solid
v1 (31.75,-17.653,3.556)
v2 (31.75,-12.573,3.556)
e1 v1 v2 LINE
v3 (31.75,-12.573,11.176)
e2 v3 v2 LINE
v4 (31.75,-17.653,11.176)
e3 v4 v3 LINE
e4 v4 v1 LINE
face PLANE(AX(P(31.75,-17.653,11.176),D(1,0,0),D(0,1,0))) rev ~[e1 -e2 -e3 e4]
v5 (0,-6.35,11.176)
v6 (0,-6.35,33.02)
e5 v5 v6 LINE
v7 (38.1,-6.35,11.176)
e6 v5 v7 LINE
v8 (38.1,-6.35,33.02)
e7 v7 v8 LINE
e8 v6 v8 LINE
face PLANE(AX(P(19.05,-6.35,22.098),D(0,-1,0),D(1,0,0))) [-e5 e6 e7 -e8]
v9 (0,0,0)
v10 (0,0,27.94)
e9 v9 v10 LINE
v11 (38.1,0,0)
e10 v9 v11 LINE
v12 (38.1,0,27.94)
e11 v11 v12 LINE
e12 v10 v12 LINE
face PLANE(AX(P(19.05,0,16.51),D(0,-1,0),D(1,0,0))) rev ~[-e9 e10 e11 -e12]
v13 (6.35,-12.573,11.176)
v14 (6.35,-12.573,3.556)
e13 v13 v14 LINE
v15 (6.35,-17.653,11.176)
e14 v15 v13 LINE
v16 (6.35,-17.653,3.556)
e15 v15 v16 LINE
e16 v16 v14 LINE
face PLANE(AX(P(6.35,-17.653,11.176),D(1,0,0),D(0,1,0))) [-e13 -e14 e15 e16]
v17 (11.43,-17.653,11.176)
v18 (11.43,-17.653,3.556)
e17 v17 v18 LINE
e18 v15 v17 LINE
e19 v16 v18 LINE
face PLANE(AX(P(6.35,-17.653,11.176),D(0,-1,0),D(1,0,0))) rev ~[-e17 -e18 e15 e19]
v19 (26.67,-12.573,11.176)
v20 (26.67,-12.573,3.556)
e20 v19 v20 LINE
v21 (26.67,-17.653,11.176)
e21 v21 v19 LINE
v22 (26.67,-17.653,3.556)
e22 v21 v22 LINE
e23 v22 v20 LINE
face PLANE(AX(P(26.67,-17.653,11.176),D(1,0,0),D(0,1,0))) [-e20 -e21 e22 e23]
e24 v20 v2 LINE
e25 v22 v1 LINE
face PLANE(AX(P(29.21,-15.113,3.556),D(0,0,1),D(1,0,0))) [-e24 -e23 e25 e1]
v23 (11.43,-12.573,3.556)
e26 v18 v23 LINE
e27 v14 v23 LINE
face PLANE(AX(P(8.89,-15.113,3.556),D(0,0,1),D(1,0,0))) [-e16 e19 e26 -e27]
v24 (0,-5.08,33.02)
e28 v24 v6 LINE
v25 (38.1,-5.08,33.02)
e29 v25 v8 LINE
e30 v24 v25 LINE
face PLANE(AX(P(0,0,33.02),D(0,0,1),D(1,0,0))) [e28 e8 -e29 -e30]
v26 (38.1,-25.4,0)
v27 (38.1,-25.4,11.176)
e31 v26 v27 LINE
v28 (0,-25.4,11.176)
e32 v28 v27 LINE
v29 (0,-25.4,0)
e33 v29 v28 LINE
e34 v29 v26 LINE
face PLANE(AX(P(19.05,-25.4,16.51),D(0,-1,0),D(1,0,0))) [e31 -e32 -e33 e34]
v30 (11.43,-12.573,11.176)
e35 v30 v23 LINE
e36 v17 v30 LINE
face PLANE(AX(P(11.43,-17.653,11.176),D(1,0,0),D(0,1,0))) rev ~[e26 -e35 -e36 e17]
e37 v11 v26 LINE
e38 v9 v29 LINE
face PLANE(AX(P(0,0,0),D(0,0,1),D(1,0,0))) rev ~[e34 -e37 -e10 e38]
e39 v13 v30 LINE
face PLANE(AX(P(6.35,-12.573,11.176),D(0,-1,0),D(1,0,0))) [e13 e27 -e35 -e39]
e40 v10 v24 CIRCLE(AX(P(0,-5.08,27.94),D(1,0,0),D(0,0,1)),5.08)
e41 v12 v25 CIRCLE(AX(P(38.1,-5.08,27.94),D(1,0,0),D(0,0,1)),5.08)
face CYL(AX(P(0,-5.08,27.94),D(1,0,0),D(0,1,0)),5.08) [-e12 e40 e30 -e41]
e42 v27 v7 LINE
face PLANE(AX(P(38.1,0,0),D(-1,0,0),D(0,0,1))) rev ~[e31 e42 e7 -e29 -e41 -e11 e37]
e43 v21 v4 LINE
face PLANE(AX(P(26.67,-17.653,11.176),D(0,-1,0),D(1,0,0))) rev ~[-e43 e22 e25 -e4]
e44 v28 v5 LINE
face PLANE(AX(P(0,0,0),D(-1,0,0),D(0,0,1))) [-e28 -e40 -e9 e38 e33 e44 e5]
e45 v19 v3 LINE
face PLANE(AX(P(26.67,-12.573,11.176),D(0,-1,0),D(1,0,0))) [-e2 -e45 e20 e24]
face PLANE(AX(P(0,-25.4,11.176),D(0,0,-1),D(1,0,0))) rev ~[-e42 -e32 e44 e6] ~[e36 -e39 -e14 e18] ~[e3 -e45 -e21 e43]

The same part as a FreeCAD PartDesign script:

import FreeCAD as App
import Part
import Sketcher

V = App.Vector
Q = App.Units.Quantity


def edges_at(feature, points):
    """Names of the edges that pass closest to the given points."""
    edges = feature.Shape.Edges
    near = lambda p: min(range(len(edges)), key=lambda i: edges[i].distToShape(Part.Vertex(*p))[0])
    return sorted({f"Edge{near(p) + 1}" for p in points})

doc = App.newDocument("Part")
params = doc.addObject("Spreadsheet::Sheet", "Params")
for row, (alias, value) in enumerate([
    ("sketch1_width", "1.5 in"),
    ("sketch1_height", "1.3 in"),
    ("pad1_length", "1 in"),
    ("sketch2_width", "1.5 in"),
    ("sketch2_height", "0.86 in"),
    ("pocket1_length", "0.75 in"),
    ("sketch3_width", "0.2 in"),
    ("pocket2_length", "0.3 in"),
    ("fillet_radius", "0.2 in"),
], start=1):
    params.set(f"A{row}", alias)
    params.set(f"B{row}", "=" + value)
    params.setAlias(f"B{row}", alias)

body = doc.addObject("PartDesign::Body", "Body")

sketch1 = body.newObject("Sketcher::SketchObject", "Sketch")
sketch1.AttachmentSupport = (doc.getObject("XZ_Plane"), [""])
sketch1.MapMode = "FlatFace"
sketch1.addGeometry(Part.LineSegment(V(0, 33, 0), V(0, 0, 0)), False)
sketch1.addGeometry(Part.LineSegment(V(0, 0, 0), V(38, 0, 0)), False)
sketch1.addGeometry(Part.LineSegment(V(38, 0, 0), V(38, 33, 0)), False)
sketch1.addGeometry(Part.LineSegment(V(38, 33, 0), V(0, 33, 0)), False)
sketch1.addConstraint(Sketcher.Constraint("Coincident", 0, 2, 1, 1))
sketch1.addConstraint(Sketcher.Constraint("Coincident", 1, 2, 2, 1))
sketch1.addConstraint(Sketcher.Constraint("Coincident", 2, 2, 3, 1))
sketch1.addConstraint(Sketcher.Constraint("Coincident", 3, 2, 0, 1))
sketch1.addConstraint(Sketcher.Constraint("Vertical", 0))
sketch1.addConstraint(Sketcher.Constraint("Horizontal", 1))
sketch1.addConstraint(Sketcher.Constraint("Vertical", 2))
sketch1.addConstraint(Sketcher.Constraint("Horizontal", 3))
sketch1.addConstraint(Sketcher.Constraint("Coincident", 0, 2, -1, 1))
sketch1.addConstraint(Sketcher.Constraint("DistanceX", 1, 1, 1, 2, Q("1.5 in")))
sketch1.addConstraint(Sketcher.Constraint("DistanceY", 0, 2, 0, 1, Q("1.3 in")))
sketch1.setExpression("Constraints[9]", "Params.sketch1_width")
sketch1.setExpression("Constraints[10]", "Params.sketch1_height")
pad1 = body.newObject("PartDesign::Pad", "Pad")
pad1.Profile = sketch1
pad1.setExpression("Length", "Params.pad1_length")

sketch2 = body.newObject("Sketcher::SketchObject", "Sketch001")
sketch2.AttachmentSupport = (doc.getObject("XZ_Plane"), [""])
sketch2.MapMode = "FlatFace"
sketch2.AttachmentOffset = App.Placement(V(0, 0, 1 * 25.4), App.Rotation())
sketch2.addGeometry(Part.LineSegment(V(0, 33, 0), V(0, 11, 0)), False)
sketch2.addGeometry(Part.LineSegment(V(0, 11, 0), V(38, 11, 0)), False)
sketch2.addGeometry(Part.LineSegment(V(38, 11, 0), V(38, 33, 0)), False)
sketch2.addGeometry(Part.LineSegment(V(38, 33, 0), V(0, 33, 0)), False)
sketch2.addConstraint(Sketcher.Constraint("Coincident", 0, 2, 1, 1))
sketch2.addConstraint(Sketcher.Constraint("Coincident", 1, 2, 2, 1))
sketch2.addConstraint(Sketcher.Constraint("Coincident", 2, 2, 3, 1))
sketch2.addConstraint(Sketcher.Constraint("Coincident", 3, 2, 0, 1))
sketch2.addConstraint(Sketcher.Constraint("Vertical", 0))
sketch2.addConstraint(Sketcher.Constraint("Horizontal", 1))
sketch2.addConstraint(Sketcher.Constraint("Vertical", 2))
sketch2.addConstraint(Sketcher.Constraint("Horizontal", 3))
sketch2.addConstraint(Sketcher.Constraint("PointOnObject", 0, 2, -2))
sketch2.addConstraint(Sketcher.Constraint("DistanceX", 1, 1, 1, 2, Q("1.5 in")))
sketch2.addConstraint(Sketcher.Constraint("DistanceY", 0, 2, 0, 1, Q("0.86 in")))
sketch2.addConstraint(Sketcher.Constraint("DistanceY", -1, 1, 2, 2, Q("1.3 in")))
sketch2.setExpression("Constraints[9]", "Params.sketch2_width")
sketch2.setExpression("Constraints[10]", "Params.sketch2_height")
pocket1 = body.newObject("PartDesign::Pocket", "Pocket")
pocket1.Profile = sketch2
pocket1.setExpression("Length", "Params.pocket1_length")

sketch3 = body.newObject("Sketcher::SketchObject", "Sketch002")
sketch3.AttachmentSupport = (doc.getObject("XY_Plane"), [""])
sketch3.MapMode = "FlatFace"
sketch3.AttachmentOffset = App.Placement(V(0, 0, 0.44 * 25.4), App.Rotation())
sketch3.addGeometry(Part.LineSegment(V(6, -13, 0), V(6, -18, 0)), False)
sketch3.addGeometry(Part.LineSegment(V(6, -18, 0), V(11, -18, 0)), False)
sketch3.addGeometry(Part.LineSegment(V(11, -18, 0), V(11, -13, 0)), False)
sketch3.addGeometry(Part.LineSegment(V(11, -13, 0), V(6, -13, 0)), False)
sketch3.addGeometry(Part.LineSegment(V(27, -13, 0), V(27, -18, 0)), False)
sketch3.addGeometry(Part.LineSegment(V(27, -18, 0), V(32, -18, 0)), False)
sketch3.addGeometry(Part.LineSegment(V(32, -18, 0), V(32, -13, 0)), False)
sketch3.addGeometry(Part.LineSegment(V(32, -13, 0), V(27, -13, 0)), False)
sketch3.addConstraint(Sketcher.Constraint("Coincident", 0, 2, 1, 1))
sketch3.addConstraint(Sketcher.Constraint("Coincident", 1, 2, 2, 1))
sketch3.addConstraint(Sketcher.Constraint("Coincident", 2, 2, 3, 1))
sketch3.addConstraint(Sketcher.Constraint("Coincident", 3, 2, 0, 1))
sketch3.addConstraint(Sketcher.Constraint("Coincident", 4, 2, 5, 1))
sketch3.addConstraint(Sketcher.Constraint("Coincident", 5, 2, 6, 1))
sketch3.addConstraint(Sketcher.Constraint("Coincident", 6, 2, 7, 1))
sketch3.addConstraint(Sketcher.Constraint("Coincident", 7, 2, 4, 1))
sketch3.addConstraint(Sketcher.Constraint("Vertical", 0))
sketch3.addConstraint(Sketcher.Constraint("Horizontal", 1))
sketch3.addConstraint(Sketcher.Constraint("Vertical", 2))
sketch3.addConstraint(Sketcher.Constraint("Horizontal", 3))
sketch3.addConstraint(Sketcher.Constraint("Vertical", 4))
sketch3.addConstraint(Sketcher.Constraint("Horizontal", 5))
sketch3.addConstraint(Sketcher.Constraint("Vertical", 6))
sketch3.addConstraint(Sketcher.Constraint("Horizontal", 7))
sketch3.addConstraint(Sketcher.Constraint("Horizontal", 1, 2, 4, 2))
sketch3.addConstraint(Sketcher.Constraint("Horizontal", 3, 2, 6, 2))
sketch3.addConstraint(Sketcher.Constraint("Equal", 3, 5))
sketch3.addConstraint(Sketcher.Constraint("Equal", 7, 0))
sketch3.addConstraint(Sketcher.Constraint("DistanceX", 1, 1, 1, 2, Q("0.2 in")))
sketch3.addConstraint(Sketcher.Constraint("DistanceX", 0, 2, 5, 2, Q("1 in")))
sketch3.addConstraint(Sketcher.Constraint("DistanceX", -1, 1, 0, 2, Q("0.25 in")))
sketch3.addConstraint(Sketcher.Constraint("DistanceY", 0, 2, -1, 1, Q("0.695 in")))
sketch3.setExpression("Constraints[20]", "Params.sketch3_width")
pocket2 = body.newObject("PartDesign::Pocket", "Pocket001")
pocket2.Profile = sketch3
pocket2.setExpression("Length", "Params.pocket2_length")
doc.recompute()

fillet = body.newObject("PartDesign::Fillet", "Fillet")
fillet.Base = (pocket2, edges_at(pocket2, [(19.05, 0, 33.02)]))
fillet.setExpression("Radius", "Params.fillet_radius")

doc.recompute()
